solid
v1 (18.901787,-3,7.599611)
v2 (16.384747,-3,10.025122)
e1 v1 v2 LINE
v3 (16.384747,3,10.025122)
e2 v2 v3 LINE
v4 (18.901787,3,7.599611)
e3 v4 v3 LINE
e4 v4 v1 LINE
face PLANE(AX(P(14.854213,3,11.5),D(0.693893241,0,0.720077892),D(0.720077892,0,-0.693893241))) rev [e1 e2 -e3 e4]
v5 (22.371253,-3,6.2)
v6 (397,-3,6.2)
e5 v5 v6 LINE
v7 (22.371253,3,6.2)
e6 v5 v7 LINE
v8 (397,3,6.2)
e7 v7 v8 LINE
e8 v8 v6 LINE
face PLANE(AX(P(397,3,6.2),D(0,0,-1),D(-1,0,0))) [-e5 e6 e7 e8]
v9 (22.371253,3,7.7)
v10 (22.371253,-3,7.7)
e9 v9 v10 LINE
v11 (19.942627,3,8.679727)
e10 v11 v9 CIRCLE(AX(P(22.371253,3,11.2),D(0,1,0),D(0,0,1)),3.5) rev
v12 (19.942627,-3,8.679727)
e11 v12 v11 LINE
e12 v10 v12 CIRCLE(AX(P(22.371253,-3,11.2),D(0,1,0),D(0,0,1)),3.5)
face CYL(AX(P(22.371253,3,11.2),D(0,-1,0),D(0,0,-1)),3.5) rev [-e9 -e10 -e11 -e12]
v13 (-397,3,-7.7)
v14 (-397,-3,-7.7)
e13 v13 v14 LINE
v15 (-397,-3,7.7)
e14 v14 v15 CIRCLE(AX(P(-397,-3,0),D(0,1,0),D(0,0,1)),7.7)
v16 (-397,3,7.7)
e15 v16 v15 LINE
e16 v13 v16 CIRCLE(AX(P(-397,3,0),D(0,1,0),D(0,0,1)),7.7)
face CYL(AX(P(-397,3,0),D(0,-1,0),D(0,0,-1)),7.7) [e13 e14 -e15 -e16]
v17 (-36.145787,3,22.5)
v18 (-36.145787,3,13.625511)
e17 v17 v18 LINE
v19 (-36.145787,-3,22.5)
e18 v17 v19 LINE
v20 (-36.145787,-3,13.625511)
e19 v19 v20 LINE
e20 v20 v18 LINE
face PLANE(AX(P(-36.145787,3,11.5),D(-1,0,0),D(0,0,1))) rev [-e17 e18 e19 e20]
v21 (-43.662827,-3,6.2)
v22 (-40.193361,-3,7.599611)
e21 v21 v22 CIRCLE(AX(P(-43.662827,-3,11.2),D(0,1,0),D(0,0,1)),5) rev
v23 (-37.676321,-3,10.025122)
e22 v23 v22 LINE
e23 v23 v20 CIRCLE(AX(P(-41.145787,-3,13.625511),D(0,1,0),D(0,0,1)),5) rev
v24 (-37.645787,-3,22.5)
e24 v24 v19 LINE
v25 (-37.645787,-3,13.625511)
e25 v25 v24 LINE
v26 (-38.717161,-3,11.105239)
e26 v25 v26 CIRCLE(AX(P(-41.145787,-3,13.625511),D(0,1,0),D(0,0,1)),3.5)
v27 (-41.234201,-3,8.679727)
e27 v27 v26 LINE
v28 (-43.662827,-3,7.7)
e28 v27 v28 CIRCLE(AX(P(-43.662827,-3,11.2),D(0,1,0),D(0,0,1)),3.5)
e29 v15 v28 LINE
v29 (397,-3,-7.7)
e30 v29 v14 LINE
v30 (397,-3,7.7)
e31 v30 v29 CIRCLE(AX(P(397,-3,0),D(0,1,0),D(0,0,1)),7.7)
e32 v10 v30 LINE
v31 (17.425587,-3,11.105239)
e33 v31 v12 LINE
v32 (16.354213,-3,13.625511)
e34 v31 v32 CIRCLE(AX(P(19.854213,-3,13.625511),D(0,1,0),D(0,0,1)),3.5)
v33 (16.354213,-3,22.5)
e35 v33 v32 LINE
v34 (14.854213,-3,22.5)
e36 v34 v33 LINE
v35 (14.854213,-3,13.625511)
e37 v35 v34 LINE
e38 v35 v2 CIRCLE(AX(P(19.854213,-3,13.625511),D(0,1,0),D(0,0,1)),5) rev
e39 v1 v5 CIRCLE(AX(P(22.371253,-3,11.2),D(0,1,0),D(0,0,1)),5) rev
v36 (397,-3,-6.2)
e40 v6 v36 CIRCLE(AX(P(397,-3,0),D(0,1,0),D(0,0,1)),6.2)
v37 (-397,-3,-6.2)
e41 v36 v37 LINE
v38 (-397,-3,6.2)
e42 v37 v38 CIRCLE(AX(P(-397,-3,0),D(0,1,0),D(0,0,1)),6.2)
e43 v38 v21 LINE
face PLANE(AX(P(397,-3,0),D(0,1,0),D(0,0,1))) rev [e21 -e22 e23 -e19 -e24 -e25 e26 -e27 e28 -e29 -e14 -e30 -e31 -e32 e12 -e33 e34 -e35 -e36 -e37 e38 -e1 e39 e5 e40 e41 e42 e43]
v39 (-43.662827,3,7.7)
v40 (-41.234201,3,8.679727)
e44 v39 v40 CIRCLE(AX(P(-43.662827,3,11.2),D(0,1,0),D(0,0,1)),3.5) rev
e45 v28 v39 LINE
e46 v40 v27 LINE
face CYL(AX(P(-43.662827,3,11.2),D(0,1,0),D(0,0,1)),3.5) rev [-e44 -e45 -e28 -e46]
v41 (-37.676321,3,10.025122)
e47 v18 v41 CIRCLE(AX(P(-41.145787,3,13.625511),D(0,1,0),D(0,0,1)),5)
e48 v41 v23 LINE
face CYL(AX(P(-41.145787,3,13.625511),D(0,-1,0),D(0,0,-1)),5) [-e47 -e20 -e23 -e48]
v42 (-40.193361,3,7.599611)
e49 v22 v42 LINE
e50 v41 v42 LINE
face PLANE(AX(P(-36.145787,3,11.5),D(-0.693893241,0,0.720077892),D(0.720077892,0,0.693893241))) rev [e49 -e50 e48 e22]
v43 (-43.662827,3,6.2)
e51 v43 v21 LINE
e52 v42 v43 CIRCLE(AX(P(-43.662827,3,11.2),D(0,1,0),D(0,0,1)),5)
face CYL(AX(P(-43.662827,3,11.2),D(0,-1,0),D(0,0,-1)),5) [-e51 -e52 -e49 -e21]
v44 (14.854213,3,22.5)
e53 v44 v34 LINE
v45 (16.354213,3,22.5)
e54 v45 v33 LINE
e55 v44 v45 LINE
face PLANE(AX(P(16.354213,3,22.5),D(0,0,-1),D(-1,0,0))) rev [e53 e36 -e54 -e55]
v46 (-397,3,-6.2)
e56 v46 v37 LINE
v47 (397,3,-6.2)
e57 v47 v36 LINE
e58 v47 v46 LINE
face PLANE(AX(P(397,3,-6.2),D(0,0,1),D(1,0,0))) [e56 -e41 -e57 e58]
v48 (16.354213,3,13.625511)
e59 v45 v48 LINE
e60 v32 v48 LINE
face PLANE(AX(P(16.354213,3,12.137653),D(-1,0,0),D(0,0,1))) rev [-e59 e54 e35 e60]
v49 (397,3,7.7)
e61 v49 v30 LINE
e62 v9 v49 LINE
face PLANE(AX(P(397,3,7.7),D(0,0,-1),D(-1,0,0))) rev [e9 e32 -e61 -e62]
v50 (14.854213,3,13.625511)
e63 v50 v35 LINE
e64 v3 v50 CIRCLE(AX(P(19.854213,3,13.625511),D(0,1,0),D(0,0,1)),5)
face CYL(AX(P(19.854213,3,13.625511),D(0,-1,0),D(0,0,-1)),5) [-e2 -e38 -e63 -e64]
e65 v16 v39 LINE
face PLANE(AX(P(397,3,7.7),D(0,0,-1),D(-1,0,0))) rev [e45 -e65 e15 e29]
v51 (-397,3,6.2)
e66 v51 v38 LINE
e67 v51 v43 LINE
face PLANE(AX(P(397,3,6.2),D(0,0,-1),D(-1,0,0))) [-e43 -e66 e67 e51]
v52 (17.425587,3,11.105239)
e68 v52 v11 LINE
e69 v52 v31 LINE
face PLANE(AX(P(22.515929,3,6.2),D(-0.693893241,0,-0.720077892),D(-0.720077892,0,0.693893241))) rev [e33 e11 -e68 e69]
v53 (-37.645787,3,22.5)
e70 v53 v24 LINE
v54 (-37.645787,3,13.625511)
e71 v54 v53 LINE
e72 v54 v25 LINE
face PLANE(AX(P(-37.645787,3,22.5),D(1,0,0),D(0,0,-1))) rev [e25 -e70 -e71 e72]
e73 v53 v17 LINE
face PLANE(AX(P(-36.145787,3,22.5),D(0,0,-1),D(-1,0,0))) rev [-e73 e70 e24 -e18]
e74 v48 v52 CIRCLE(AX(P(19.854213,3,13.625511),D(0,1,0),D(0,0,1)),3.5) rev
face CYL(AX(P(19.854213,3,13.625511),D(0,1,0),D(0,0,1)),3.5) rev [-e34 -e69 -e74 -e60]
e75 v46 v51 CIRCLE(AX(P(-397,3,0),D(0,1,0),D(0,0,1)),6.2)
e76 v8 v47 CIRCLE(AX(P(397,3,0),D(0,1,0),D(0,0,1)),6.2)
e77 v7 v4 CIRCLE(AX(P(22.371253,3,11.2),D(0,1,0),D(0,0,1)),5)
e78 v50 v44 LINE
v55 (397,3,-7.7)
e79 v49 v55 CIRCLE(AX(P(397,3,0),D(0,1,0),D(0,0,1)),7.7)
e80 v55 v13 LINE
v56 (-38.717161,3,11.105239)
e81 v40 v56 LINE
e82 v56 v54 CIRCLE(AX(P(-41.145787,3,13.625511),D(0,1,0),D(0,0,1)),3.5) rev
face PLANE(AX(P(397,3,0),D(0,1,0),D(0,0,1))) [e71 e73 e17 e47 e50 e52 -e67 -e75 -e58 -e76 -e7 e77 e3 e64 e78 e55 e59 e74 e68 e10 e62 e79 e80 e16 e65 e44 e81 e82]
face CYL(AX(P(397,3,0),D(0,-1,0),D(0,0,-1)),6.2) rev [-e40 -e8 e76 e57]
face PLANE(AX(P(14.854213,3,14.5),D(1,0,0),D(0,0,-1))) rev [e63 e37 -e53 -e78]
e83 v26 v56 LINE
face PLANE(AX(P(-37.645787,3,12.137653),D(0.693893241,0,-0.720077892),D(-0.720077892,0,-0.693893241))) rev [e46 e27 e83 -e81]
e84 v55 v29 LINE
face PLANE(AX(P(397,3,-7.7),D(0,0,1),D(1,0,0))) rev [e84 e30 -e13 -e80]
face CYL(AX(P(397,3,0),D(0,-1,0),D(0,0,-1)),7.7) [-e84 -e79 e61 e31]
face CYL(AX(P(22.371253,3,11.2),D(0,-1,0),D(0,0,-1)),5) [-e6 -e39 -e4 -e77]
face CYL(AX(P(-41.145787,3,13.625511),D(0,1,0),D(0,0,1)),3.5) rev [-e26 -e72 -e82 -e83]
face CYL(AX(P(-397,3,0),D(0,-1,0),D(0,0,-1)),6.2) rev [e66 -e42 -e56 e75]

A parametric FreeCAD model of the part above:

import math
import FreeCAD as App
import Part
import Sketcher
Q = App.Units.Quantity


def edges_at(feature, points):
    """Names of the edges that pass closest to the given points."""
    edges = feature.Shape.Edges
    near = lambda p: min(range(len(edges)), key=lambda i: edges[i].distToShape(Part.Vertex(*p))[0])
    return sorted({f"Edge{near(p) + 1}" for p in points})


def add_polygon(sketch, points):
    """Adds a closed chain of lines whose ends are joined by coincident constraints."""
    first, n = sketch.GeometryCount, len(points)
    for a, b in zip(points, points[1:] + points[:1]):
        sketch.addGeometry(Part.LineSegment(App.Vector(*a, 0), App.Vector(*b, 0)), False)
    for i in range(n):
        sketch.addConstraint(Sketcher.Constraint("Coincident", first + i, 2, first + (i + 1) % n, 1))

doc = App.newDocument("Part")
body = doc.addObject("PartDesign::Body", "Body")

# Sketch on XZ plane
sketch1 = body.newObject("Sketcher::SketchObject", "Sketch")
sketch1.AttachmentSupport = (doc.getObject("XZ_Plane"), [""])
sketch1.MapMode = "FlatFace"
sketch1.addGeometry(Part.LineSegment(App.Vector(-397, 8, 0), App.Vector(397, 8, 0)), False)
sketch1.addGeometry(Part.ArcOfCircle(Part.Circle(App.Vector(397, 0, 0), App.Vector(0, 0, 1), 8), math.radians(-90), math.radians(90)), False)
sketch1.addGeometry(Part.LineSegment(App.Vector(397, -8, 0), App.Vector(-397, -8, 0)), False)
sketch1.addGeometry(Part.ArcOfCircle(Part.Circle(App.Vector(-397, 0, 0), App.Vector(0, 0, 1), 8), math.radians(90), math.radians(270)), False)
sketch1.addGeometry(Part.LineSegment(App.Vector(397, 6, 0), App.Vector(-397, 6, 0)), False)
sketch1.addGeometry(Part.ArcOfCircle(Part.Circle(App.Vector(-397, 0, 0), App.Vector(0, 0, 1), 6), math.radians(90), math.radians(270)), False)
sketch1.addGeometry(Part.LineSegment(App.Vector(-397, -6, 0), App.Vector(397, -6, 0)), False)
sketch1.addGeometry(Part.ArcOfCircle(Part.Circle(App.Vector(397, 0, 0), App.Vector(0, 0, 1), 6), math.radians(-90), math.radians(90)), False)
sketch1.addConstraint(Sketcher.Constraint("Tangent", 0, 2, 1, 2))
sketch1.addConstraint(Sketcher.Constraint("Tangent", 1, 1, 2, 1))
sketch1.addConstraint(Sketcher.Constraint("Tangent", 2, 2, 3, 2))
sketch1.addConstraint(Sketcher.Constraint("Tangent", 3, 1, 0, 1))
sketch1.addConstraint(Sketcher.Constraint("Tangent", 4, 2, 5, 1))
sketch1.addConstraint(Sketcher.Constraint("Tangent", 5, 2, 6, 1))
sketch1.addConstraint(Sketcher.Constraint("Tangent", 6, 2, 7, 1))
sketch1.addConstraint(Sketcher.Constraint("Tangent", 7, 2, 4, 1))
sketch1.addConstraint(Sketcher.Constraint("Horizontal", 0))
sketch1.addConstraint(Sketcher.Constraint("Horizontal", 2))
sketch1.addConstraint(Sketcher.Constraint("Horizontal", 4))
sketch1.addConstraint(Sketcher.Constraint("Horizontal", 6))
sketch1.addConstraint(Sketcher.Constraint("Coincident", 5, 3, 3, 3))
sketch1.addConstraint(Sketcher.Constraint("Symmetric", 1, 3, 3, 3, -1, 1))
sketch1.addConstraint(Sketcher.Constraint("Vertical", 7, 3, 0, 2))
sketch1.addConstraint(Sketcher.Constraint("Radius", 1, Q("7.7 mm")))
sketch1.addConstraint(Sketcher.Constraint("Radius", 5, Q("6.2 mm")))
sketch1.addConstraint(Sketcher.Constraint("DistanceX", 0, 1, 0, 2, Q("794 mm")))
pad1 = body.newObject("PartDesign::Pad", "Pad")
pad1.Profile = sketch1
pad1.Length = 6
pad1.Midplane = True

# Sketch on XZ plane
sketch2 = body.newObject("Sketcher::SketchObject", "Sketch001")
sketch2.AttachmentSupport = (doc.getObject("XZ_Plane"), [""])
sketch2.MapMode = "FlatFace"
add_polygon(sketch2, [(-36.1, 22.5), (-36.1, 11.5), (-41.6, 6.2), (-43.8, 6.2), (-37.6, 12.1), (-37.6, 22.5)])  # lines 0-5
add_polygon(sketch2, [(14.9, 11.5), (14.9, 22.5), (16.4, 22.5), (16.4, 12.1), (22.5, 6.2), (20.4, 6.2)])  # lines 6-11
sketch2.addConstraint(Sketcher.Constraint("Vertical", 0))
sketch2.addConstraint(Sketcher.Constraint("Horizontal", 2))
sketch2.addConstraint(Sketcher.Constraint("Vertical", 4))
sketch2.addConstraint(Sketcher.Constraint("Horizontal", 5))
sketch2.addConstraint(Sketcher.Constraint("Vertical", 6))
sketch2.addConstraint(Sketcher.Constraint("Horizontal", 7))
sketch2.addConstraint(Sketcher.Constraint("Vertical", 8))
sketch2.addConstraint(Sketcher.Constraint("Horizontal", 10))
sketch2.addConstraint(Sketcher.Constraint("Parallel", 1, 3))
sketch2.addConstraint(Sketcher.Constraint("Parallel", 9, 11))
sketch2.addConstraint(Sketcher.Constraint("Horizontal", 5, 2, 6, 2))
sketch2.addConstraint(Sketcher.Constraint("Horizontal", 3, 2, 8, 2))
sketch2.addConstraint(Sketcher.Constraint("Horizontal", 2, 2, 9, 2))
sketch2.addConstraint(Sketcher.Constraint("Horizontal", 0, 2, 11, 2))
sketch2.addConstraint(Sketcher.Constraint("Equal", 5, 7))
sketch2.addConstraint(Sketcher.Constraint("Equal", 2, 10))
sketch2.addConstraint(Sketcher.Constraint("DistanceY", 0, 2, 0, 1, Q("11 mm")))
sketch2.addConstraint(Sketcher.Constraint("DistanceX", 5, 1, 5, 2, Q("1.5 mm")))
sketch2.addConstraint(Sketcher.Constraint("DistanceX", 1, 2, 3, 2, Q("4 mm")))
sketch2.addConstraint(Sketcher.Constraint("DistanceX", 5, 2, 6, 2, Q("51 mm")))
sketch2.addConstraint(Sketcher.Constraint("DistanceY", -1, 1, 0, 2, Q("11.5 mm")))
sketch2.addConstraint(Sketcher.Constraint("DistanceY", -1, 1, 1, 2, Q("6.2 mm")))
sketch2.addConstraint(Sketcher.Constraint("DistanceX", 2, 2, 2, 1, Q("2.161716 mm")))
sketch2.addConstraint(Sketcher.Constraint("DistanceX", -1, 1, 9, 2, Q("22.515929 mm")))
pad2 = body.newObject("PartDesign::Pad", "Pad001")
pad2.Profile = sketch2
pad2.Length = 6
pad2.Midplane = True

# Sketch on XZ plane
sketch3 = body.newObject("Sketcher::SketchObject", "Sketch002")
sketch3.AttachmentSupport = (doc.getObject("XZ_Plane"), [""])
sketch3.MapMode = "FlatFace"
sketch3.AttachmentOffset = App.Placement(App.Vector(0, 0, -3), App.Rotation())
add_polygon(sketch3, [(-41.6, 6.2), (-40.1, 7.7), (18.8, 7.7), (20.4, 6.2)])  # lines 0-3
sketch3.addConstraint(Sketcher.Constraint("Horizontal", 1))
sketch3.addConstraint(Sketcher.Constraint("Horizontal", 3))
sketch3.addConstraint(Sketcher.Constraint("Equal", 0, 2))
sketch3.addConstraint(Sketcher.Constraint("DistanceX", 3, 2, 3, 1, Q("62 mm")))
sketch3.addConstraint(Sketcher.Constraint("DistanceY", -1, 1, 0, 2, Q("7.7 mm")))
sketch3.addConstraint(Sketcher.Constraint("DistanceY", -1, 1, 2, 2, Q("6.2 mm")))
sketch3.addConstraint(Sketcher.Constraint("DistanceX", 1, 1, 1, 2, Q("58.886792 mm")))
sketch3.addConstraint(Sketcher.Constraint("DistanceX", -1, 1, 1, 2, Q("18.797609 mm")))
pocket1 = body.newObject("PartDesign::Pocket", "Pocket")
pocket1.Profile = sketch3
pocket1.Type = "ThroughAll"
pocket1.Reversed = True
doc.recompute()

fillet = body.newObject("PartDesign::Fillet", "Fillet")
fillet.Base = (pocket1, edges_at(pocket1, [
    (-36.146, 0, 11.5),
    (14.854, 0, 11.5),
    (-41.646, 0, 6.2),
    (20.354, 0, 6.2),
]))
fillet.Radius = 5
doc.recompute()

fillet2 = body.newObject("PartDesign::Fillet", "Fillet001")
fillet2.Base = (fillet, edges_at(fillet, [
    (-42.251, 0, 7.7),
    (-37.646, 0, 12.138),
    (20.959, 0, 7.7),
    (16.354, 0, 12.138),
]))
fillet2.Radius = 3.5

doc.recompute()
